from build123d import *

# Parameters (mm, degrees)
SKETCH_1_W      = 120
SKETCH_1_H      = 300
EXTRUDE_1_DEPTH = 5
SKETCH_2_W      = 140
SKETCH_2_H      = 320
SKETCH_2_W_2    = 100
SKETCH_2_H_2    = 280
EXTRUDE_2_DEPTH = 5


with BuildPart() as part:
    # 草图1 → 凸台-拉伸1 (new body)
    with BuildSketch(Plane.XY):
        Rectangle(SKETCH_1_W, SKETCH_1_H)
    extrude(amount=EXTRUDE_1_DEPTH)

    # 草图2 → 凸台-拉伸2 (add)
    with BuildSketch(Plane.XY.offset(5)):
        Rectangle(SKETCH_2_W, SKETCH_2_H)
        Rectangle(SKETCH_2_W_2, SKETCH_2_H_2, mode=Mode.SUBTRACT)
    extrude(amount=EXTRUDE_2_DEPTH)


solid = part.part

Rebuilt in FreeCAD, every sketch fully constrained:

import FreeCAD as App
import Part
import Sketcher
from FreeCAD import Vector
Q = App.Units.Quantity

doc = App.newDocument("Part")
params = doc.addObject("Spreadsheet::Sheet", "Params")
for row, (alias, value) in enumerate([
    ("sketch1_width", "120 mm"),
    ("sketch1_height", "300 mm"),
    ("pad1_length", "5 mm"),
    ("sketch2_width", "140 mm"),
    ("sketch2_width2", "100 mm"),
    ("sketch2_height", "320 mm"),
    ("sketch2_height2", "280 mm"),
    ("pad2_length", "5 mm"),
], start=1):
    params.set(f"A{row}", alias)
    params.set(f"B{row}", "=" + value)
    params.setAlias(f"B{row}", alias)

body = doc.addObject("PartDesign::Body", "Body")

# Sketch on XY plane
sketch1 = doc.addObject("Sketcher::SketchObject", "Sketch")
body.addObject(sketch1)
sketch1.AttachmentSupport = (doc.XY_Plane, [""])
sketch1.MapMode = "FlatFace"
sketch1.addGeometry([
    Part.LineSegment(Vector(-60, 150, 0), Vector(-60, -150, 0)),
    Part.LineSegment(Vector(-60, -150, 0), Vector(60, -150, 0)),
    Part.LineSegment(Vector(60, -150, 0), Vector(60, 150, 0)),
    Part.LineSegment(Vector(60, 150, 0), Vector(-60, 150, 0)),
], False)
sketch1.addConstraint([
    Sketcher.Constraint("Coincident", 0, 2, 1, 1),
    Sketcher.Constraint("Coincident", 1, 2, 2, 1),
    Sketcher.Constraint("Coincident", 2, 2, 3, 1),
    Sketcher.Constraint("Coincident", 3, 2, 0, 1),
    Sketcher.Constraint("Vertical", 0),
    Sketcher.Constraint("Horizontal", 1),
    Sketcher.Constraint("Vertical", 2),
    Sketcher.Constraint("Horizontal", 3),
    Sketcher.Constraint("Symmetric", 0, 2, 2, 2, -1, 1),
    Sketcher.Constraint("DistanceX", 1, 1, 1, 2, Q("120 mm")),
    Sketcher.Constraint("DistanceY", 0, 2, 0, 1, Q("300 mm")),
])
sketch1.setExpression("Constraints[9]", "Params.sketch1_width")
sketch1.setExpression("Constraints[10]", "Params.sketch1_height")
pad1 = doc.addObject("PartDesign::Pad", "Pad")
body.addObject(pad1)
pad1.Profile = sketch1
pad1.setExpression("Length", "Params.pad1_length")

# Sketch on XY plane
sketch2 = doc.addObject("Sketcher::SketchObject", "Sketch001")
body.addObject(sketch2)
sketch2.AttachmentSupport = (doc.XY_Plane, [""])
sketch2.MapMode = "FlatFace"
sketch2.AttachmentOffset = App.Placement(Vector(0, 0, 5), App.Rotation())
sketch2.addGeometry([
    Part.LineSegment(Vector(-70, 160, 0), Vector(-70, -160, 0)),  # 0
    Part.LineSegment(Vector(-70, -160, 0), Vector(70, -160, 0)),  # 1
    Part.LineSegment(Vector(70, -160, 0), Vector(70, 160, 0)),  # 2
    Part.LineSegment(Vector(70, 160, 0), Vector(-70, 160, 0)),  # 3
    Part.LineSegment(Vector(50, -140, 0), Vector(-50, -140, 0)),  # 4
    Part.LineSegment(Vector(-50, -140, 0), Vector(-50, 140, 0)),  # 5
    Part.LineSegment(Vector(-50, 140, 0), Vector(50, 140, 0)),  # 6
    Part.LineSegment(Vector(50, 140, 0), Vector(50, -140, 0)),  # 7
], False)
sketch2.addConstraint([
    Sketcher.Constraint("Coincident", 0, 2, 1, 1),
    Sketcher.Constraint("Coincident", 1, 2, 2, 1),
    Sketcher.Constraint("Coincident", 2, 2, 3, 1),
    Sketcher.Constraint("Coincident", 3, 2, 0, 1),
    Sketcher.Constraint("Coincident", 4, 2, 5, 1),
    Sketcher.Constraint("Coincident", 5, 2, 6, 1),
    Sketcher.Constraint("Coincident", 6, 2, 7, 1),
    Sketcher.Constraint("Coincident", 7, 2, 4, 1),
    Sketcher.Constraint("Vertical", 0),
    Sketcher.Constraint("Horizontal", 1),
    Sketcher.Constraint("Vertical", 2),
    Sketcher.Constraint("Horizontal", 3),
    Sketcher.Constraint("Horizontal", 4),
    Sketcher.Constraint("Vertical", 5),
    Sketcher.Constraint("Horizontal", 6),
    Sketcher.Constraint("Vertical", 7),
    Sketcher.Constraint("Symmetric", 0, 2, 2, 2, -1, 1),
    Sketcher.Constraint("Symmetric", 4, 2, 6, 2, -1, 1),
    Sketcher.Constraint("DistanceX", 1, 1, 1, 2, Q("140 mm")),
    Sketcher.Constraint("DistanceX", 4, 2, 4, 1, Q("100 mm")),
    Sketcher.Constraint("DistanceY", 0, 2, 0, 1, Q("320 mm")),
    Sketcher.Constraint("DistanceY", 5, 1, 5, 2, Q("280 mm")),
])
sketch2.setExpression("Constraints[18]", "Params.sketch2_width")
sketch2.setExpression("Constraints[19]", "Params.sketch2_width2")
sketch2.setExpression("Constraints[20]", "Params.sketch2_height")
sketch2.setExpression("Constraints[21]", "Params.sketch2_height2")
pad2 = doc.addObject("PartDesign::Pad", "Pad001")
body.addObject(pad2)
pad2.Profile = sketch2
pad2.setExpression("Length", "Params.pad2_length")

doc.recompute()
